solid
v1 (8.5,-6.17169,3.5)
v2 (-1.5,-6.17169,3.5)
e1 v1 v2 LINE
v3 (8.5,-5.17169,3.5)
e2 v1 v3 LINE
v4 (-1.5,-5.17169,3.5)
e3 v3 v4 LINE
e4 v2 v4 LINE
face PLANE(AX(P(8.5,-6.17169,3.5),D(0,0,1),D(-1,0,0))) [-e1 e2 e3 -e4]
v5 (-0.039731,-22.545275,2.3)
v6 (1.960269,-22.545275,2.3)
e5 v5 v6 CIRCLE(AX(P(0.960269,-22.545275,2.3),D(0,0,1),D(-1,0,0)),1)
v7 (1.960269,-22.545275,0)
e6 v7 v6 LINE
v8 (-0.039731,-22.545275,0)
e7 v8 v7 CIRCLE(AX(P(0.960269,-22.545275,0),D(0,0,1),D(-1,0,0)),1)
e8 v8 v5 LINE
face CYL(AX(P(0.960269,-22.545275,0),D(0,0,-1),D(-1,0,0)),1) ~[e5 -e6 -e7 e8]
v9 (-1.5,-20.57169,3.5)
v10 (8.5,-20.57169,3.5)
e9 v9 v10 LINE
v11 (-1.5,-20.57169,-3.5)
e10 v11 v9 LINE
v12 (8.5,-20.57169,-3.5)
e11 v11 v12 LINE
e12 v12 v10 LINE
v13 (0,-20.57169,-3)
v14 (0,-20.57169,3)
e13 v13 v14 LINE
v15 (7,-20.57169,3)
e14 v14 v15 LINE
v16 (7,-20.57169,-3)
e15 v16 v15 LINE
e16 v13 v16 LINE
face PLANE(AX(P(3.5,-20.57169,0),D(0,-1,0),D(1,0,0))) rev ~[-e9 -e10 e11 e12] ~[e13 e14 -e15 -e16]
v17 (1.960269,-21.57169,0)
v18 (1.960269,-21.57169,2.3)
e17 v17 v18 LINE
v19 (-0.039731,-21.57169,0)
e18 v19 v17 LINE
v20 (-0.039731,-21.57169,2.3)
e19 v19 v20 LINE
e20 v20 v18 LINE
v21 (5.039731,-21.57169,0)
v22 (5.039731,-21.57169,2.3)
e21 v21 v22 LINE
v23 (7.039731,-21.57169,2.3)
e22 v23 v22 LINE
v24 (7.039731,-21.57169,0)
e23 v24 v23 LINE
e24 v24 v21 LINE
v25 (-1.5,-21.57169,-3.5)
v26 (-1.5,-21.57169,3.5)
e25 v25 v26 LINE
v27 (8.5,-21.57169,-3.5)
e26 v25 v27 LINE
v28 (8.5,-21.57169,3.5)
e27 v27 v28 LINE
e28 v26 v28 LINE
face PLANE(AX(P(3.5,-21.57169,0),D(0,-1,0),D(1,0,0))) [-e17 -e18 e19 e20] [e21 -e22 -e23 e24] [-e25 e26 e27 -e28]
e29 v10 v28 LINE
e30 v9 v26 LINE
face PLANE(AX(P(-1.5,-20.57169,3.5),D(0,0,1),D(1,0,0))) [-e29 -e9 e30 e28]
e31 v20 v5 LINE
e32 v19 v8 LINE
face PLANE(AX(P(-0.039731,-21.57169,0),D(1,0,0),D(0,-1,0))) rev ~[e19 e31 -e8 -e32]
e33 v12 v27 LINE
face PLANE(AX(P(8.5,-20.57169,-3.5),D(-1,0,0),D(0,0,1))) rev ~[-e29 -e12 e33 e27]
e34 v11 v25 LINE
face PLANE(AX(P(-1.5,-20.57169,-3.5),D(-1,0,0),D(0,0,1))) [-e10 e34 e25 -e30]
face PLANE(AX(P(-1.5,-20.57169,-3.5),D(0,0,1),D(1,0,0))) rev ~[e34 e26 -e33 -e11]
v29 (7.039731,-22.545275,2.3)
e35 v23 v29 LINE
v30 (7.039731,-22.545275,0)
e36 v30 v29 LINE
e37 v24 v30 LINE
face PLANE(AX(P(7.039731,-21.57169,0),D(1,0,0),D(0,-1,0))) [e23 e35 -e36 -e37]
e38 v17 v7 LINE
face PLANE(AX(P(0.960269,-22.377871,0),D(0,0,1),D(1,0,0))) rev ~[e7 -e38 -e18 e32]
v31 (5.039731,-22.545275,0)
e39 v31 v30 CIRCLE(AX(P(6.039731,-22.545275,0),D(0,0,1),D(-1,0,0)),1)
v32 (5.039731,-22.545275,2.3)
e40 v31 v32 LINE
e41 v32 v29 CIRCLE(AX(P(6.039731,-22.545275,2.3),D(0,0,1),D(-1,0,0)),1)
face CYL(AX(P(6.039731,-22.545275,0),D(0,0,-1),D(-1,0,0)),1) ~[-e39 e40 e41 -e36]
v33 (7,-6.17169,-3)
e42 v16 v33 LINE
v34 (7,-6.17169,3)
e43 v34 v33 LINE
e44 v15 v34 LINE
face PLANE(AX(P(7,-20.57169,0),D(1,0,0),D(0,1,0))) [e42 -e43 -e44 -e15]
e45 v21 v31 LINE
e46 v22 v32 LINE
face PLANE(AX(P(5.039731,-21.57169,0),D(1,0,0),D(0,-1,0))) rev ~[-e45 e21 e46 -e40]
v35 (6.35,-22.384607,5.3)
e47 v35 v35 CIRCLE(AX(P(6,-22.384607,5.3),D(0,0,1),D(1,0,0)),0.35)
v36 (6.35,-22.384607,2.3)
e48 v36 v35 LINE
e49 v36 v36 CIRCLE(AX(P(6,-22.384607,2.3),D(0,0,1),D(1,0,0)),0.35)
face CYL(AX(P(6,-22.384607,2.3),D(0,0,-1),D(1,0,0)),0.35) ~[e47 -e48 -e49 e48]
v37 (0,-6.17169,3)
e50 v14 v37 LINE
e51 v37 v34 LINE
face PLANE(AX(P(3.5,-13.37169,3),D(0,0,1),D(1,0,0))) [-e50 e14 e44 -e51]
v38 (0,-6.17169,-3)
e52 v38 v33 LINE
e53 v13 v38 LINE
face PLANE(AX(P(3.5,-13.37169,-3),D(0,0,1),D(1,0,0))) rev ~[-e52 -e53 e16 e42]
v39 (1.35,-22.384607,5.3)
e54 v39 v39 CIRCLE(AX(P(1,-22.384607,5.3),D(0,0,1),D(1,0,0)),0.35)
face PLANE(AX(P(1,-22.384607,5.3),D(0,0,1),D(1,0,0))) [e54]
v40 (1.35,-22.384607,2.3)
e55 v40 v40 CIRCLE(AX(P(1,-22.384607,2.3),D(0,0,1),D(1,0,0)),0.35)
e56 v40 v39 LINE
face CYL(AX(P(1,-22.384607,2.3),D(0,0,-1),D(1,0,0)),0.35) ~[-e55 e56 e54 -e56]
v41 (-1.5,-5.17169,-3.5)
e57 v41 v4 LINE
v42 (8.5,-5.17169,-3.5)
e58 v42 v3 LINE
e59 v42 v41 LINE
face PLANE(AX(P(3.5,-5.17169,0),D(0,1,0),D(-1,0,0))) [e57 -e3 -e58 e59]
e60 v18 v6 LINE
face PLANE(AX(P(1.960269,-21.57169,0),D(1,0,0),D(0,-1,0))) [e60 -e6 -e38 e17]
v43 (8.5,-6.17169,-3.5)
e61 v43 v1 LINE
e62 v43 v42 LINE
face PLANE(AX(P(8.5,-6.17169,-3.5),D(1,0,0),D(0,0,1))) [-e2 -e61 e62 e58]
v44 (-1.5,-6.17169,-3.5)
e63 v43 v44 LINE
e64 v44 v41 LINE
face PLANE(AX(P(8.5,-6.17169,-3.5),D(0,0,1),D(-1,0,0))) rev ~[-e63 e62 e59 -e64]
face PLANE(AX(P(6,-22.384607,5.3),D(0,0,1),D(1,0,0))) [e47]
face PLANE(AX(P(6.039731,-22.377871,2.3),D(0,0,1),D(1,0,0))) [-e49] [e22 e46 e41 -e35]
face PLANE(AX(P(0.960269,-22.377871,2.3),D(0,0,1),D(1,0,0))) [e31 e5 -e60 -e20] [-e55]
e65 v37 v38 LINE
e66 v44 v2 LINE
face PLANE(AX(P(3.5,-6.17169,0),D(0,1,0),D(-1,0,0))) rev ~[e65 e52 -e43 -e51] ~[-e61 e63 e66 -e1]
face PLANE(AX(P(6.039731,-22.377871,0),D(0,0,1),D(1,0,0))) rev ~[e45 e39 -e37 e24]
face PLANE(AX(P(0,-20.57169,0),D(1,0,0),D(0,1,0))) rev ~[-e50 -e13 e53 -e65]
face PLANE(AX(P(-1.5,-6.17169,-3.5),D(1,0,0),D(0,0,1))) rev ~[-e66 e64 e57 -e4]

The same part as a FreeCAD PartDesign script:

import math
import FreeCAD as App
import Part
import Sketcher
from FreeCAD import Vector
Q = App.Units.Quantity

doc = App.newDocument("Part")
body = doc.addObject("PartDesign::Body", "Body")

# Sketch on XY plane
sketch1 = body.newObject("Sketcher::SketchObject", "Sketch")
sketch1.AttachmentSupport = (doc.getObject("XY_Plane"), [""])
sketch1.MapMode = "FlatFace"
sketch1.addGeometry(Part.LineSegment(Vector(-4, 7, 0), Vector(-4, -8, 0)), False)
sketch1.addGeometry(Part.LineSegment(Vector(-4, -8, 0), Vector(4, -8, 0)), False)
sketch1.addGeometry(Part.LineSegment(Vector(4, -8, 0), Vector(4, 7, 0)), False)
sketch1.addGeometry(Part.LineSegment(Vector(4, 7, 0), Vector(-4, 7, 0)), False)
sketch1.addConstraint(Sketcher.Constraint("Coincident", 0, 2, 1, 1))
sketch1.addConstraint(Sketcher.Constraint("Coincident", 1, 2, 2, 1))
sketch1.addConstraint(Sketcher.Constraint("Coincident", 2, 2, 3, 1))
sketch1.addConstraint(Sketcher.Constraint("Coincident", 3, 2, 0, 1))
sketch1.addConstraint(Sketcher.Constraint("Vertical", 0))
sketch1.addConstraint(Sketcher.Constraint("Horizontal", 1))
sketch1.addConstraint(Sketcher.Constraint("Vertical", 2))
sketch1.addConstraint(Sketcher.Constraint("Horizontal", 3))
sketch1.addConstraint(Sketcher.Constraint("DistanceX", 1, 1, 1, 2, Q("7 mm")))
sketch1.addConstraint(Sketcher.Constraint("DistanceY", 0, 2, 0, 1, Q("14.4 mm")))
sketch1.addConstraint(Sketcher.Constraint("DistanceX", 0, 2, -1, 1, Q("3.5 mm")))
sketch1.addConstraint(Sketcher.Constraint("DistanceY", 0, 2, -1, 1, Q("7.57169 mm")))
pad1 = body.newObject("PartDesign::Pad", "Pad")
pad1.Profile = sketch1
pad1.Length = 6
pad1.Midplane = True

# Sketch on XZ plane
sketch2 = body.newObject("Sketcher::SketchObject", "Sketch001")
sketch2.AttachmentSupport = (doc.getObject("XZ_Plane"), [""])
sketch2.MapMode = "FlatFace"
sketch2.AttachmentOffset = App.Placement(Vector(0, 0, 7.57169), App.Rotation())
sketch2.addGeometry(Part.LineSegment(Vector(-5, 4, 0), Vector(-5, -4, 0)), False)
sketch2.addGeometry(Part.LineSegment(Vector(-5, -4, 0), Vector(5, -4, 0)), False)
sketch2.addGeometry(Part.LineSegment(Vector(5, -4, 0), Vector(5, 4, 0)), False)
sketch2.addGeometry(Part.LineSegment(Vector(5, 4, 0), Vector(-5, 4, 0)), False)
sketch2.addConstraint(Sketcher.Constraint("Coincident", 0, 2, 1, 1))
sketch2.addConstraint(Sketcher.Constraint("Coincident", 1, 2, 2, 1))
sketch2.addConstraint(Sketcher.Constraint("Coincident", 2, 2, 3, 1))
sketch2.addConstraint(Sketcher.Constraint("Coincident", 3, 2, 0, 1))
sketch2.addConstraint(Sketcher.Constraint("Vertical", 0))
sketch2.addConstraint(Sketcher.Constraint("Horizontal", 1))
sketch2.addConstraint(Sketcher.Constraint("Vertical", 2))
sketch2.addConstraint(Sketcher.Constraint("Horizontal", 3))
sketch2.addConstraint(Sketcher.Constraint("Symmetric", 0, 2, 2, 2, -1, 1))
sketch2.addConstraint(Sketcher.Constraint("DistanceX", 1, 1, 1, 2, Q("10 mm")))
sketch2.addConstraint(Sketcher.Constraint("DistanceY", 0, 2, 0, 1, Q("7 mm")))
pad2 = body.newObject("PartDesign::Pad", "Pad001")
pad2.Profile = sketch2
pad2.Length = 1

# Sketch on XZ plane
sketch3 = body.newObject("Sketcher::SketchObject", "Sketch002")
sketch3.AttachmentSupport = (doc.getObject("XZ_Plane"), [""])
sketch3.MapMode = "FlatFace"
sketch3.AttachmentOffset = App.Placement(Vector(0, 0, -6.82831), App.Rotation())
sketch3.addGeometry(Part.LineSegment(Vector(5, 4, 0), Vector(5, -4, 0)), False)
sketch3.addGeometry(Part.LineSegment(Vector(5, -4, 0), Vector(-5, -4, 0)), False)
sketch3.addGeometry(Part.LineSegment(Vector(-5, -4, 0), Vector(-5, 4, 0)), False)
sketch3.addGeometry(Part.LineSegment(Vector(-5, 4, 0), Vector(5, 4, 0)), False)
sketch3.addConstraint(Sketcher.Constraint("Coincident", 0, 2, 1, 1))
sketch3.addConstraint(Sketcher.Constraint("Coincident", 1, 2, 2, 1))
sketch3.addConstraint(Sketcher.Constraint("Coincident", 2, 2, 3, 1))
sketch3.addConstraint(Sketcher.Constraint("Coincident", 3, 2, 0, 1))
sketch3.addConstraint(Sketcher.Constraint("Vertical", 0))
sketch3.addConstraint(Sketcher.Constraint("Horizontal", 1))
sketch3.addConstraint(Sketcher.Constraint("Vertical", 2))
sketch3.addConstraint(Sketcher.Constraint("Horizontal", 3))
sketch3.addConstraint(Sketcher.Constraint("Symmetric", 0, 2, 2, 2, -1, 1))
sketch3.addConstraint(Sketcher.Constraint("DistanceX", 1, 2, 1, 1, Q("10 mm")))
sketch3.addConstraint(Sketcher.Constraint("DistanceY", 0, 2, 0, 1, Q("7 mm")))
pad3 = body.newObject("PartDesign::Pad", "Pad002")
pad3.Profile = sketch3
pad3.Length = 1
pad3.Reversed = True

# Sketch on XY plane
sketch4 = body.newObject("Sketcher::SketchObject", "Sketch003")
sketch4.AttachmentSupport = (doc.getObject("XY_Plane"), [""])
sketch4.MapMode = "FlatFace"
sketch4.addGeometry(Part.ArcOfCircle(Part.Circle(Vector(-2.5, -9.5, 0), Vector(0, 0, 1), 1), math.radians(180), math.radians(360)), False)
sketch4.addGeometry(Part.LineSegment(Vector(-1.5, -9.5, 0), Vector(-1.5, -8.6, 0)), False)
sketch4.addGeometry(Part.LineSegment(Vector(-1.5, -8.6, 0), Vector(-3.5, -8.6, 0)), False)
sketch4.addGeometry(Part.LineSegment(Vector(-3.5, -8.6, 0), Vector(-3.5, -9.5, 0)), False)
sketch4.addGeometry(Part.ArcOfCircle(Part.Circle(Vector(2.5, -9.5, 0), Vector(0, 0, 1), 1), math.radians(180), math.radians(360)), False)
sketch4.addGeometry(Part.LineSegment(Vector(3.5, -9.5, 0), Vector(3.5, -8.6, 0)), False)
sketch4.addGeometry(Part.LineSegment(Vector(3.5, -8.6, 0), Vector(1.5, -8.6, 0)), False)
sketch4.addGeometry(Part.LineSegment(Vector(1.5, -8.6, 0), Vector(1.5, -9.5, 0)), False)
sketch4.addConstraint(Sketcher.Constraint("Tangent", 0, 2, 1, 1))
sketch4.addConstraint(Sketcher.Constraint("Coincident", 1, 2, 2, 1))
sketch4.addConstraint(Sketcher.Constraint("Coincident", 2, 2, 3, 1))
sketch4.addConstraint(Sketcher.Constraint("Tangent", 3, 2, 0, 1))
sketch4.addConstraint(Sketcher.Constraint("Tangent", 4, 2, 5, 1))
sketch4.addConstraint(Sketcher.Constraint("Coincident", 5, 2, 6, 1))
sketch4.addConstraint(Sketcher.Constraint("Coincident", 6, 2, 7, 1))
sketch4.addConstraint(Sketcher.Constraint("Tangent", 7, 2, 4, 1))
sketch4.addConstraint(Sketcher.Constraint("Vertical", 1))
sketch4.addConstraint(Sketcher.Constraint("Horizontal", 2))
sketch4.addConstraint(Sketcher.Constraint("Vertical", 3))
sketch4.addConstraint(Sketcher.Constraint("Vertical", 5))
sketch4.addConstraint(Sketcher.Constraint("Horizontal", 6))
sketch4.addConstraint(Sketcher.Constraint("Vertical", 7))
sketch4.addConstraint(Sketcher.Constraint("Equal", 0, 4))
sketch4.addConstraint(Sketcher.Constraint("Symmetric", 0, 3, 4, 3, -2))
sketch4.addConstraint(Sketcher.Constraint("Horizontal", 2, 2, 5, 2))
sketch4.addConstraint(Sketcher.Constraint("Radius", 0, Q("1 mm")))
sketch4.addConstraint(Sketcher.Constraint("DistanceY", 1, 1, 1, 2, Q("0.973585 mm")))
sketch4.addConstraint(Sketcher.Constraint("DistanceX", 0, 3, -1, 1, Q("2.539731 mm")))
sketch4.addConstraint(Sketcher.Constraint("DistanceY", 1, 2, -1, 1, Q("8.57169 mm")))
pad4 = body.newObject("PartDesign::Pad", "Pad003")
pad4.Profile = sketch4
pad4.Length = 2.3

# Sketch on XY plane
sketch5 = body.newObject("Sketcher::SketchObject", "Sketch004")
sketch5.AttachmentSupport = (doc.getObject("XY_Plane"), [""])
sketch5.MapMode = "FlatFace"
sketch5.AttachmentOffset = App.Placement(Vector(0, 0, 2.3), App.Rotation())
sketch5.addGeometry(Part.Circle(Vector(-2.5, -9.38, 0), Vector(0, 0, 1), 0.35), False)
sketch5.addGeometry(Part.Circle(Vector(2.5, -9.38, 0), Vector(0, 0, 1), 0.35), False)
sketch5.addConstraint(Sketcher.Constraint("Equal", 0, 1))
sketch5.addConstraint(Sketcher.Constraint("Symmetric", 0, 3, 1, 3, -2))
sketch5.addConstraint(Sketcher.Constraint("Diameter", 0, Q("0.7 mm")))
sketch5.addConstraint(Sketcher.Constraint("DistanceX", 0, 3, 1, 3, Q("5 mm")))
sketch5.addConstraint(Sketcher.Constraint("DistanceY", 0, 3, -1, 1, Q("9.384607 mm")))
pad5 = body.newObject("PartDesign::Pad", "Pad004")
pad5.Profile = sketch5
pad5.Length = 3
body2 = doc.addObject("PartDesign::Body", "Body001")
doc.recompute()

body.Placement = App.Placement(Vector(3.5, -13, 0), App.Rotation(Vector(0, 0, 1), 0))
boolean = body2.newObject("PartDesign::Boolean", "Boolean")
boolean.Type = "Fuse"
boolean.addObjects([body])

doc.recompute()
